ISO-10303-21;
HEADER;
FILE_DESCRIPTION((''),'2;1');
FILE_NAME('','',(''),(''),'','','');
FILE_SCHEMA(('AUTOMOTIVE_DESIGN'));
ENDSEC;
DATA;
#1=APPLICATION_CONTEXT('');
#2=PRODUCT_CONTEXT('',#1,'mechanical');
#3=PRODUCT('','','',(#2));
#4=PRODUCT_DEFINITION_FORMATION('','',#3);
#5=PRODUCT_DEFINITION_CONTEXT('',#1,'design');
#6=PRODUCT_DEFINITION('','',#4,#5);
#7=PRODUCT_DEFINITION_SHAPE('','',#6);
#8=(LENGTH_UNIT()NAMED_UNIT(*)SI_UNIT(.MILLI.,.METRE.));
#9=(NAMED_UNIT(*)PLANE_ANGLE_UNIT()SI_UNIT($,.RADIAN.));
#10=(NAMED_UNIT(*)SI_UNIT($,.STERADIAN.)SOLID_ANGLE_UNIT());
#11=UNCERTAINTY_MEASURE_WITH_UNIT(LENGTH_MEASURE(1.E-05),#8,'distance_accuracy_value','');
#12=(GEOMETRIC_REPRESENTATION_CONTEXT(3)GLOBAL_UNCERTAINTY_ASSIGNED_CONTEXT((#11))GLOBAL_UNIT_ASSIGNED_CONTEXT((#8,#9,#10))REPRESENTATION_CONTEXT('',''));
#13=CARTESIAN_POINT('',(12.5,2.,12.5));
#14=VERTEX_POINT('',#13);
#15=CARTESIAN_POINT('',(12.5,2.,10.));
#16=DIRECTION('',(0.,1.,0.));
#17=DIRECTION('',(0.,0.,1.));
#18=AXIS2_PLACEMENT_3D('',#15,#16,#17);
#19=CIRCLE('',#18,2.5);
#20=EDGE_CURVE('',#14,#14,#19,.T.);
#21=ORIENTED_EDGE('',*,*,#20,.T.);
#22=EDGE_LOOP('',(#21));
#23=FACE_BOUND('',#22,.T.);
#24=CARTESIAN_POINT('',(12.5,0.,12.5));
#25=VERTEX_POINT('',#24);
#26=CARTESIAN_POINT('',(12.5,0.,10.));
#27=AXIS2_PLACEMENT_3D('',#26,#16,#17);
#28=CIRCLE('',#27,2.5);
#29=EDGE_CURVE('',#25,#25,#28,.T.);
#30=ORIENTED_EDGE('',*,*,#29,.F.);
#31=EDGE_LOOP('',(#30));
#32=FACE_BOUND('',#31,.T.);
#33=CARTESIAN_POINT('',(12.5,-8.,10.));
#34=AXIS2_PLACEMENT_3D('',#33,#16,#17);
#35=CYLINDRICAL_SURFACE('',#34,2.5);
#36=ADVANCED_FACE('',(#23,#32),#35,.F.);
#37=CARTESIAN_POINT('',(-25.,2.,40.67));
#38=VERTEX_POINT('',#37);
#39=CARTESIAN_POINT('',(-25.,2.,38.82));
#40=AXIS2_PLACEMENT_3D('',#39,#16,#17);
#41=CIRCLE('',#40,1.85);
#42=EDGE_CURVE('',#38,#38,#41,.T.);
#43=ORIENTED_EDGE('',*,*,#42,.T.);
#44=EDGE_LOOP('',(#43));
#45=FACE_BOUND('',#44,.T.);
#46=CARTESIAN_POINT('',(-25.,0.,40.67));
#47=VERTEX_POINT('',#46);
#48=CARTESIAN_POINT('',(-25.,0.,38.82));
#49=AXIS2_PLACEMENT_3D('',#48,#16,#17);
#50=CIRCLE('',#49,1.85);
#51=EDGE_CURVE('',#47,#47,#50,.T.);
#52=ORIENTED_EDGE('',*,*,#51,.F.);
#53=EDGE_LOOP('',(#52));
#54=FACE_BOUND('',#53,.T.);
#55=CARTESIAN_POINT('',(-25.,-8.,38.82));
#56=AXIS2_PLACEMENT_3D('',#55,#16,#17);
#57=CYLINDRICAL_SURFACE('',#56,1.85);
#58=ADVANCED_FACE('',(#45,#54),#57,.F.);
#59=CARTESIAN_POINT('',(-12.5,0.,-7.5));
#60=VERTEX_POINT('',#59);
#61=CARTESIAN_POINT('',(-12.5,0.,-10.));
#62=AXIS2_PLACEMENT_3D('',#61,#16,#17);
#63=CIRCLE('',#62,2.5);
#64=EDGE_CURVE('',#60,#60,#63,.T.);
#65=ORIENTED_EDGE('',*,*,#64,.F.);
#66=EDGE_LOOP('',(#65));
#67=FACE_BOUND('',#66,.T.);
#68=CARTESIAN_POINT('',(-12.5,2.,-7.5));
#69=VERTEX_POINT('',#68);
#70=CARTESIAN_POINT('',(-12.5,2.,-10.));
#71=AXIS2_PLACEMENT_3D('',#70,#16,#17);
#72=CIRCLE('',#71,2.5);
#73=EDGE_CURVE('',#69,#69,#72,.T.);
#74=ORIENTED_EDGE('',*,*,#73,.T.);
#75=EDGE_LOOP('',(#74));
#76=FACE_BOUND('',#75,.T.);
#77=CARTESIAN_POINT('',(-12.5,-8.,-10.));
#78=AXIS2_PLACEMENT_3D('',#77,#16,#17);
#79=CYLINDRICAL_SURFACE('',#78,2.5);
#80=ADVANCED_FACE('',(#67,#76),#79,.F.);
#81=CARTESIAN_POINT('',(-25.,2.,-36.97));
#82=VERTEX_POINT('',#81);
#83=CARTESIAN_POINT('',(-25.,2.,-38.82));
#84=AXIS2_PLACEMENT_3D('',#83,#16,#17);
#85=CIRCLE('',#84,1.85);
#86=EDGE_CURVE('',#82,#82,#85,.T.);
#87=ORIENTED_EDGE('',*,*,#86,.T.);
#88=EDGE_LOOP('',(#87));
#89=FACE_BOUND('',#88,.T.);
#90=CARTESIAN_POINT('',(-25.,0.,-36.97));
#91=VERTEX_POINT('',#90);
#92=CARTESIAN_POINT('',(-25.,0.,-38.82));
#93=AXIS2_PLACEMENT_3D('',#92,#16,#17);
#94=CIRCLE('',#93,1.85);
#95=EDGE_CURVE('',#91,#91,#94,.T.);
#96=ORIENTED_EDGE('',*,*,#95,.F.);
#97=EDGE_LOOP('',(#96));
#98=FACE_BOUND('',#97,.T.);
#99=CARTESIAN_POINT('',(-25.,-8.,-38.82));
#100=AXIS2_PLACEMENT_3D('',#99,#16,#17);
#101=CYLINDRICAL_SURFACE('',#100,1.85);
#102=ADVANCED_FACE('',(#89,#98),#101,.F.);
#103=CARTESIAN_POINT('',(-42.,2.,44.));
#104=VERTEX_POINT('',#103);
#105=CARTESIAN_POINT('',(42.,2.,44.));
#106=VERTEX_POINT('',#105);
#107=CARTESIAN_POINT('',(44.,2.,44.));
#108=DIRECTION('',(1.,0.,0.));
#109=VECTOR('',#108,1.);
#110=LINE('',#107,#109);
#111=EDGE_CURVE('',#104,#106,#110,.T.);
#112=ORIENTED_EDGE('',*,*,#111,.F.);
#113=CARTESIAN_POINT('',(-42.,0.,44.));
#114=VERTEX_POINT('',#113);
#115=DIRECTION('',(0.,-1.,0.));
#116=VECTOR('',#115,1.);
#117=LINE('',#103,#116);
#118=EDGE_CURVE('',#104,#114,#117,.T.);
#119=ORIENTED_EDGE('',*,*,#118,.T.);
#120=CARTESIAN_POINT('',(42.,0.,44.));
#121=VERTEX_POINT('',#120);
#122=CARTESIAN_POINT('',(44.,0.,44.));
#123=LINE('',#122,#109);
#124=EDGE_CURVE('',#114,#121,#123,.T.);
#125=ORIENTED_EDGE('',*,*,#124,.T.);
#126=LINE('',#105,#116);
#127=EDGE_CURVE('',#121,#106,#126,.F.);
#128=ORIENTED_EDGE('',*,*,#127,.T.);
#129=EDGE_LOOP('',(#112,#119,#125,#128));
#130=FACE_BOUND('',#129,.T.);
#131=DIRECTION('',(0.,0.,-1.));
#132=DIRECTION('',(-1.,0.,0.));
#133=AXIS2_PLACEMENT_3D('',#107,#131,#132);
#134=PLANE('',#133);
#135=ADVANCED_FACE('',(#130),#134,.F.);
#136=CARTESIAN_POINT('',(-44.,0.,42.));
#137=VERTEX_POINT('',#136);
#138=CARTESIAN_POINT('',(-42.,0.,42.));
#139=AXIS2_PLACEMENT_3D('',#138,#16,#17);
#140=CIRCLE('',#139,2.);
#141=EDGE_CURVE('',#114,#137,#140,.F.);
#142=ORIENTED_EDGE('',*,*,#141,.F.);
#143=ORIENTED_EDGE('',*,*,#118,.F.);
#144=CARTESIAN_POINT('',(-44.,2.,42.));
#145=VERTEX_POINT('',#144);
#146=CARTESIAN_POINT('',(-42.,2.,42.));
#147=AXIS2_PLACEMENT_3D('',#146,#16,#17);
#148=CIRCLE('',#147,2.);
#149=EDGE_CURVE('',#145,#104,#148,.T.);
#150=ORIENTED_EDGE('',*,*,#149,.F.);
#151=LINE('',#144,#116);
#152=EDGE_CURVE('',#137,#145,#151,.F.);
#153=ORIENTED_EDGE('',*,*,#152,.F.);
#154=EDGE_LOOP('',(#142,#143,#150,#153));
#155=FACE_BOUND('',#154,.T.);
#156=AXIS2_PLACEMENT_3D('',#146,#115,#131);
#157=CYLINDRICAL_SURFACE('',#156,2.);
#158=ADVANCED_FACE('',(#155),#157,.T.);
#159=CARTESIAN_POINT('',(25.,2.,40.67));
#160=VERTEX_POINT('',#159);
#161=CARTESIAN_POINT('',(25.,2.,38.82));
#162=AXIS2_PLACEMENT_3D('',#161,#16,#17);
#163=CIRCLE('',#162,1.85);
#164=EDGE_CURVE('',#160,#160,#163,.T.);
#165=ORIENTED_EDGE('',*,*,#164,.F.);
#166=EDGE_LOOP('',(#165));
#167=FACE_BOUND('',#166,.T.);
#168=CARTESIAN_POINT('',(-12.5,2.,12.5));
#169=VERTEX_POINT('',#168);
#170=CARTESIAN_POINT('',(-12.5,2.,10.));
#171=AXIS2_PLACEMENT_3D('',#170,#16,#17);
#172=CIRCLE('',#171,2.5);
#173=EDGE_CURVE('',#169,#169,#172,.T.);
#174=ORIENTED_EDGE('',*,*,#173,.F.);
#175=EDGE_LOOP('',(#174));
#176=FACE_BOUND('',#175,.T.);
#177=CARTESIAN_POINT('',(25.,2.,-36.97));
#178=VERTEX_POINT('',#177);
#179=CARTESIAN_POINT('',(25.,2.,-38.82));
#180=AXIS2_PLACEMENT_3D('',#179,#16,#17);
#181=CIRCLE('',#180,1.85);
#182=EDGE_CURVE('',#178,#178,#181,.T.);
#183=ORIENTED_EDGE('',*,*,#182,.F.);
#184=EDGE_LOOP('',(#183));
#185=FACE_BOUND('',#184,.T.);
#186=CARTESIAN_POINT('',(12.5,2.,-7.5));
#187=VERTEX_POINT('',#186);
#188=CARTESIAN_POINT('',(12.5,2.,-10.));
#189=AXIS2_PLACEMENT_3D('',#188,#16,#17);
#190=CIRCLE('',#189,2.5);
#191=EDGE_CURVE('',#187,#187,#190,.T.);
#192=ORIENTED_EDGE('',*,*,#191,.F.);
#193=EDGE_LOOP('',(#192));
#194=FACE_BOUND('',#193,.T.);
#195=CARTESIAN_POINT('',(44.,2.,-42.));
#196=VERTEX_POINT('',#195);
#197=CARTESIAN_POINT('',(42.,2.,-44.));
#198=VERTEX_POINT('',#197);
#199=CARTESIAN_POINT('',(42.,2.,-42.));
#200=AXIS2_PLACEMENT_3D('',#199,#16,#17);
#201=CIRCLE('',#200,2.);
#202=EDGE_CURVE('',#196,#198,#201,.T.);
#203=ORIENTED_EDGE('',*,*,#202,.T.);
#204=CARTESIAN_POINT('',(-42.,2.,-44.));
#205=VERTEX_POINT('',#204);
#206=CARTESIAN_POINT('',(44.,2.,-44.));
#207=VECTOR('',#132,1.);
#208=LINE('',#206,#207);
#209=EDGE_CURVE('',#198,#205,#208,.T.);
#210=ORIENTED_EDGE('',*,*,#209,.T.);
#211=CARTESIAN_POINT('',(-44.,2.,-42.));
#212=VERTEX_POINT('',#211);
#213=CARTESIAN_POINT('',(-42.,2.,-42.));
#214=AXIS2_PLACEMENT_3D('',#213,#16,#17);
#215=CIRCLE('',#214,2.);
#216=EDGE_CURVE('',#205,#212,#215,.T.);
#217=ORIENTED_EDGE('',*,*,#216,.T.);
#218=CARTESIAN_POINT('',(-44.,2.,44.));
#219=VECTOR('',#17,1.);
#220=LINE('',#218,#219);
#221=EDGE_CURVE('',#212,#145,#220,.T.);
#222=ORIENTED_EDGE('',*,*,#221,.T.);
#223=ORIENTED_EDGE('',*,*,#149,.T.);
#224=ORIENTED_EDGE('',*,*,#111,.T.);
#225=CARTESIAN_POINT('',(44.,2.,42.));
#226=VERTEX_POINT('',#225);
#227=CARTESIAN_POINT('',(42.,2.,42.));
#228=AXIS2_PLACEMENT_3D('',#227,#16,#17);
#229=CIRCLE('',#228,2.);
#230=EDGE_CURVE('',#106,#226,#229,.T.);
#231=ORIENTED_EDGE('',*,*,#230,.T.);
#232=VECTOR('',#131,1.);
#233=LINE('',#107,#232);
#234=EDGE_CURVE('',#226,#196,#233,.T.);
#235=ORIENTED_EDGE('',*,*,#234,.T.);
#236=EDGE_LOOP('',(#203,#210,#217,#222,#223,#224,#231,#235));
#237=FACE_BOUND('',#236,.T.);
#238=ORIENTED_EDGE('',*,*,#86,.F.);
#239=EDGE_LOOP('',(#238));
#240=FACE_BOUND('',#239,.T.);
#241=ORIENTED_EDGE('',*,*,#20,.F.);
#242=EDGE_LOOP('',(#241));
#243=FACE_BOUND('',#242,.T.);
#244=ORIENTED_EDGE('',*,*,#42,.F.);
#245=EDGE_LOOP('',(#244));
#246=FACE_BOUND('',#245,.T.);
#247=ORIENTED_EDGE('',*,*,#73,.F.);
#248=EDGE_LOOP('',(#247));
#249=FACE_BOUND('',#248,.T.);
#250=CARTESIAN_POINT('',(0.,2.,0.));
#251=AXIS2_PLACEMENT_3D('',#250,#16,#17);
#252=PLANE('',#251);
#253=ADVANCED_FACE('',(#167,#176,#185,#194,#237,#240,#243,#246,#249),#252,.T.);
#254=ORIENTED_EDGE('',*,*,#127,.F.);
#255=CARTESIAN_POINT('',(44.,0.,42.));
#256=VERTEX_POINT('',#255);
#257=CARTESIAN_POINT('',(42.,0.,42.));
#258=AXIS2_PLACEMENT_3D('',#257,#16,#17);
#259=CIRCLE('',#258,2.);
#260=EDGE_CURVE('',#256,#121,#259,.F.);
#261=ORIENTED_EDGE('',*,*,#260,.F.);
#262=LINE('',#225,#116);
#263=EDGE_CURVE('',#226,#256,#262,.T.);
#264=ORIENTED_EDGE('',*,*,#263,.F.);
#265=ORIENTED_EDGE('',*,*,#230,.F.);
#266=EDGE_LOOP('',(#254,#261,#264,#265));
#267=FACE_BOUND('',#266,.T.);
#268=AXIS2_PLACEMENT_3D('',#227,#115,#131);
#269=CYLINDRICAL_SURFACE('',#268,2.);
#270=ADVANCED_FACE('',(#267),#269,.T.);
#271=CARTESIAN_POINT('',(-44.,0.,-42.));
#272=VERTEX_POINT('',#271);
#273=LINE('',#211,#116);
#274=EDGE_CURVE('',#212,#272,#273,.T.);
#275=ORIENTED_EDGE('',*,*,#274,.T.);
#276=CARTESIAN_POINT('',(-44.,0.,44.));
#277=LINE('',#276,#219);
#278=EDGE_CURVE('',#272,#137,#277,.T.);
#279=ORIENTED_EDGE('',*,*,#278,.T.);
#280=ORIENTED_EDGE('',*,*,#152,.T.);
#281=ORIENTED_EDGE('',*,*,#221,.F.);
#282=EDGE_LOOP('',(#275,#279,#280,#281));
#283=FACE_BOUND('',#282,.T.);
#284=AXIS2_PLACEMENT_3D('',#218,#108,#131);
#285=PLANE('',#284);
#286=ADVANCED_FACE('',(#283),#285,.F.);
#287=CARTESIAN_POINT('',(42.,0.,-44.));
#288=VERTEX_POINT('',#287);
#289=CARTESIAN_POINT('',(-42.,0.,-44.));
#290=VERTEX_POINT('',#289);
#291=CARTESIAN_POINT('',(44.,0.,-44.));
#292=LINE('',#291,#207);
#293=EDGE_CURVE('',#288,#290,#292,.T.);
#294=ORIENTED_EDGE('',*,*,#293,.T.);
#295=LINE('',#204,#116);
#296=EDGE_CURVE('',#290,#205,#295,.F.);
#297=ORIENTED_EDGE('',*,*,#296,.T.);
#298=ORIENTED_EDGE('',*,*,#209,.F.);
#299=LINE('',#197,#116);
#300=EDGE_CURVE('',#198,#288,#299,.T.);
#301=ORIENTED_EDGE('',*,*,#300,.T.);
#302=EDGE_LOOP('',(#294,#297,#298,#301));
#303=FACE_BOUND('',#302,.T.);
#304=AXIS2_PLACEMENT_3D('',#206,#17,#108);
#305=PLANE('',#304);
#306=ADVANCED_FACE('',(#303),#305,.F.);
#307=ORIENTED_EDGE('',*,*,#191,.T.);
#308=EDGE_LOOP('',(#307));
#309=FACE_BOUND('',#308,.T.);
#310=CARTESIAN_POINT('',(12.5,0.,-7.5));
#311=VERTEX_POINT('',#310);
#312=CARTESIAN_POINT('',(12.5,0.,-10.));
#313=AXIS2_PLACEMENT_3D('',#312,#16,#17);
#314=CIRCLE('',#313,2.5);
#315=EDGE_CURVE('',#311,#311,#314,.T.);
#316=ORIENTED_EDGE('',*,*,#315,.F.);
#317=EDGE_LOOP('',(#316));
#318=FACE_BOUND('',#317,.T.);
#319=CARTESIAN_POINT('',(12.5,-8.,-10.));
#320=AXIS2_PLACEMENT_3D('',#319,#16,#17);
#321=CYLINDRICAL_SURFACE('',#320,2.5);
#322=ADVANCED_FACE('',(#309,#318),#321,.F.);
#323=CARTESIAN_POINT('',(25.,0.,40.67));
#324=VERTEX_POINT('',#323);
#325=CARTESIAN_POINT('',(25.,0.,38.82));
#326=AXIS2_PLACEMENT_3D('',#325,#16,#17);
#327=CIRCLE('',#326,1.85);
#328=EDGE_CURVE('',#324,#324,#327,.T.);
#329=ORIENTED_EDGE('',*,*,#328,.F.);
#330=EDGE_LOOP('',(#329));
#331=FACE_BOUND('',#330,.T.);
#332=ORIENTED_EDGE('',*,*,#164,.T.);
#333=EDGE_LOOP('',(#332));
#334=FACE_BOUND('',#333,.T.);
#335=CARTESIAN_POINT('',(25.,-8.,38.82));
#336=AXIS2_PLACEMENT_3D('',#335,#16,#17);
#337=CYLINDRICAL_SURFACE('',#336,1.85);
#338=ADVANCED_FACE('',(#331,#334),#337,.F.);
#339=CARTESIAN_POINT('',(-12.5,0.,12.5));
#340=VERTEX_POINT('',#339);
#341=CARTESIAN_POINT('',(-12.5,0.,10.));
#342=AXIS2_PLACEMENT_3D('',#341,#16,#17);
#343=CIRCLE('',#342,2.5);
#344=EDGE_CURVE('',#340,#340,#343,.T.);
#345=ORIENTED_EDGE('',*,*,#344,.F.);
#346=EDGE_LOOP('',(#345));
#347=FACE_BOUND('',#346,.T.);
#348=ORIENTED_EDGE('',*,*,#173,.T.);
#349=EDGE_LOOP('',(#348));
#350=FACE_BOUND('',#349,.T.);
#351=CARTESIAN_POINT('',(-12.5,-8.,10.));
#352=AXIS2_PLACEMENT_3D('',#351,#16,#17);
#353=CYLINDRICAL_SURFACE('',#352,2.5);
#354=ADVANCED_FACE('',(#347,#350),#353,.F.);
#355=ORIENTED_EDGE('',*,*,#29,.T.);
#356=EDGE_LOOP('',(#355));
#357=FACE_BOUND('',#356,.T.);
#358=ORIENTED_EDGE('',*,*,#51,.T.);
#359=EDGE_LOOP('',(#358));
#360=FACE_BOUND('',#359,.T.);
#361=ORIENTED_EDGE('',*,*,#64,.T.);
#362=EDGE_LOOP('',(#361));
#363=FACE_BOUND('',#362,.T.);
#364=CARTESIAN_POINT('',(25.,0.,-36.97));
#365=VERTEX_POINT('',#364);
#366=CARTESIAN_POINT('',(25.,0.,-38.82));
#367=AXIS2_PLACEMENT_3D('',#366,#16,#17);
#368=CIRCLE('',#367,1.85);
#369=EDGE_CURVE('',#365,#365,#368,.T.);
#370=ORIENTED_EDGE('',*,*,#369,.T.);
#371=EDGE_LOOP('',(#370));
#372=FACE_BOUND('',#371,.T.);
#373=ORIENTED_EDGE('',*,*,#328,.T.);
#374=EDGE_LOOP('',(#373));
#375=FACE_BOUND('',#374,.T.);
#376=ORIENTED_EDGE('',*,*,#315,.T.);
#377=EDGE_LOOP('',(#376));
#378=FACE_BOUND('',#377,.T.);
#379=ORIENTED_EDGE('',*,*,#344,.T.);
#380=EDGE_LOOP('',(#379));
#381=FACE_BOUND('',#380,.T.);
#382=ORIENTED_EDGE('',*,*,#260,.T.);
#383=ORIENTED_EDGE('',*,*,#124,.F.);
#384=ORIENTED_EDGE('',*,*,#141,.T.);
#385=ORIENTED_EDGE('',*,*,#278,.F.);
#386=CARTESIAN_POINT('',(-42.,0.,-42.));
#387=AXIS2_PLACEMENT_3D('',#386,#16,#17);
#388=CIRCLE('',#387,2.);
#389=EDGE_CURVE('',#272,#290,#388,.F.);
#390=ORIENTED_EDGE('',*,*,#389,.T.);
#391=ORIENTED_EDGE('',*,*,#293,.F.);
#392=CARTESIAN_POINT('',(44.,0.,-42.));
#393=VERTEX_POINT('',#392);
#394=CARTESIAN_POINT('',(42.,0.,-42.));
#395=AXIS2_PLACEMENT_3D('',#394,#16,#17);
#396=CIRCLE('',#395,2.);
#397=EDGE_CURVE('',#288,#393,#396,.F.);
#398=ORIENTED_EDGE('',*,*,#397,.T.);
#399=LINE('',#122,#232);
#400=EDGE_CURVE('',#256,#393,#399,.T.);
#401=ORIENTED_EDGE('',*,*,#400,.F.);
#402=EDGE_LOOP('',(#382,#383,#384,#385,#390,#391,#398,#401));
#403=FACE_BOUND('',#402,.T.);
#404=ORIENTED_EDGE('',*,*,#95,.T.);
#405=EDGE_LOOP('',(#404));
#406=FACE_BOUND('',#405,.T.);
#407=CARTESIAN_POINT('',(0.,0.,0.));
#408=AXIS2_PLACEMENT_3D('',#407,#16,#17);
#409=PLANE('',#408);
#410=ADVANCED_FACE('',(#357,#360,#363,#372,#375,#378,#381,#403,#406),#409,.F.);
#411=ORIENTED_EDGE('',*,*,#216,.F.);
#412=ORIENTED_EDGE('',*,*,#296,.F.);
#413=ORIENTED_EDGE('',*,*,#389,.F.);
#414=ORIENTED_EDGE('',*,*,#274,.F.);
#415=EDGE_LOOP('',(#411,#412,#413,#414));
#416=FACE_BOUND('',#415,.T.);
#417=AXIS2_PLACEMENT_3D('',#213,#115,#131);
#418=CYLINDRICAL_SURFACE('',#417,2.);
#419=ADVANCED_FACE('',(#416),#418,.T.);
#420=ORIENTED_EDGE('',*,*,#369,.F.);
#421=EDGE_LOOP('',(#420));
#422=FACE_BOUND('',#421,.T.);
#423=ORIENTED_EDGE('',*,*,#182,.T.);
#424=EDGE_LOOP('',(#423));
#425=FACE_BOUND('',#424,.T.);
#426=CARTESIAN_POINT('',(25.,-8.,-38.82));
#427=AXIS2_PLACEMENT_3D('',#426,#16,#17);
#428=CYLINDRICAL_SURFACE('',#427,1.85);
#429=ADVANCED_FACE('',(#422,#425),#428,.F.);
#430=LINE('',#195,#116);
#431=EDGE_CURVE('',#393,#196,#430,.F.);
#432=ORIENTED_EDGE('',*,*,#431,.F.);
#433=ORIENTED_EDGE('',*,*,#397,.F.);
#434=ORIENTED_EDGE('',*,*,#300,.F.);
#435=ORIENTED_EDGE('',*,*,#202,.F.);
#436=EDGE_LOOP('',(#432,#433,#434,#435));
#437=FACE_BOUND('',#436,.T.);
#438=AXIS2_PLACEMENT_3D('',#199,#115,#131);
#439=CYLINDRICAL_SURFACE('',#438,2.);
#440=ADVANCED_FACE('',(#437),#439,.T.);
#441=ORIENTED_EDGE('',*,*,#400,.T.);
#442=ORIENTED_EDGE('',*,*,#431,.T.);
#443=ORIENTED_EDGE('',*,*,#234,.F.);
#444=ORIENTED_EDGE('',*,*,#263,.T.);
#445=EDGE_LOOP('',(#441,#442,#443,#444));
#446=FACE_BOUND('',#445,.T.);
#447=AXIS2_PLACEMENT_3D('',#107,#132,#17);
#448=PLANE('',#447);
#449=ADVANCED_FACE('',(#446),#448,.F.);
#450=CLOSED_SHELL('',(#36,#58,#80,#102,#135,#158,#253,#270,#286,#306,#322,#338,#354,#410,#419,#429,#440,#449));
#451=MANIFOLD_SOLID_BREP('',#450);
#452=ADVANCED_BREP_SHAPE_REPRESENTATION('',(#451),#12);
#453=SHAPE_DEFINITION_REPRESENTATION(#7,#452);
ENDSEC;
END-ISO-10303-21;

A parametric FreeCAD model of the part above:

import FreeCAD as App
import Part
import Sketcher
Q = App.Units.Quantity


def edges_at(feature, points):
    """Names of the edges that pass closest to the given points."""
    edges = feature.Shape.Edges
    near = lambda p: min(range(len(edges)), key=lambda i: edges[i].distToShape(Part.Vertex(*p))[0])
    return sorted({f"Edge{near(p) + 1}" for p in points})

doc = App.newDocument("Part")
params = doc.addObject("Spreadsheet::Sheet", "Params")
for row, (alias, value) in enumerate([
    ("sketch1_width", "88 mm"),
    ("pad1_length", "2 mm"),
    ("fillet_radius", "2 mm"),
    ("sketch2_diameter", "3.7 mm"),
    ("pocket1_length", "10 mm"),
    ("sketch3_diameter", "5 mm"),
    ("pocket2_length", "10 mm"),
], start=1):
    params.set(f"A{row}", alias)
    params.set(f"B{row}", "=" + value)
    params.setAlias(f"B{row}", alias)

body = doc.addObject("PartDesign::Body", "Body")

sketch1 = doc.addObject("Sketcher::SketchObject", "Sketch")
body.addObject(sketch1)
sketch1.AttachmentSupport = (doc.XZ_Plane, [""])
sketch1.MapMode = "FlatFace"
sketch1.addGeometry(Part.LineSegment(App.Vector(-44, -44, 0), App.Vector(-44, 44, 0)), False)
sketch1.addGeometry(Part.LineSegment(App.Vector(-44, 44, 0), App.Vector(44, 44, 0)), False)
sketch1.addGeometry(Part.LineSegment(App.Vector(44, 44, 0), App.Vector(44, -44, 0)), False)
sketch1.addGeometry(Part.LineSegment(App.Vector(44, -44, 0), App.Vector(-44, -44, 0)), False)
sketch1.addConstraint(Sketcher.Constraint("Coincident", 0, 2, 1, 1))
sketch1.addConstraint(Sketcher.Constraint("Coincident", 1, 2, 2, 1))
sketch1.addConstraint(Sketcher.Constraint("Coincident", 2, 2, 3, 1))
sketch1.addConstraint(Sketcher.Constraint("Coincident", 3, 2, 0, 1))
sketch1.addConstraint(Sketcher.Constraint("Vertical", 0))
sketch1.addConstraint(Sketcher.Constraint("Horizontal", 1))
sketch1.addConstraint(Sketcher.Constraint("Vertical", 2))
sketch1.addConstraint(Sketcher.Constraint("Horizontal", 3))
sketch1.addConstraint(Sketcher.Constraint("Symmetric", 0, 2, 2, 2, -1, 1))
sketch1.addConstraint(Sketcher.Constraint("Equal", 3, 0))
sketch1.addConstraint(Sketcher.Constraint("DistanceX", 1, 1, 1, 2, Q("88 mm")))
sketch1.setExpression("Constraints[10]", "Params.sketch1_width")
pad1 = doc.addObject("PartDesign::Pad", "Pad")
body.addObject(pad1)
pad1.Profile = sketch1
pad1.setExpression("Length", "Params.pad1_length")
pad1.Reversed = True
doc.recompute()

fillet = doc.addObject("PartDesign::Fillet", "Fillet")
body.addObject(fillet)
fillet.Base = (pad1, edges_at(pad1, [
    (-44, 1, -44),
    (44, 1, -44),
    (44, 1, 44),
    (-44, 1, 44),
]))
fillet.setExpression("Radius", "Params.fillet_radius")

sketch2 = doc.addObject("Sketcher::SketchObject", "Sketch001")
body.addObject(sketch2)
sketch2.AttachmentSupport = (doc.XZ_Plane, [""])
sketch2.MapMode = "FlatFace"
sketch2.AttachmentOffset = App.Placement(App.Vector(0, 0, -2), App.Rotation())
sketch2.addGeometry(Part.Circle(App.Vector(-25, -38.8, 0), App.Vector(0, 0, 1), 1.9), False)
sketch2.addGeometry(Part.Circle(App.Vector(25, -38.8, 0), App.Vector(0, 0, 1), 1.9), False)
sketch2.addGeometry(Part.Circle(App.Vector(-25, 38.8, 0), App.Vector(0, 0, 1), 1.9), False)
sketch2.addGeometry(Part.Circle(App.Vector(25, 38.8, 0), App.Vector(0, 0, 1), 1.9), False)
sketch2.addConstraint(Sketcher.Constraint("Equal", 0, 1))
sketch2.addConstraint(Sketcher.Constraint("Equal", 1, 2))
sketch2.addConstraint(Sketcher.Constraint("Equal", 2, 3))
sketch2.addConstraint(Sketcher.Constraint("Symmetric", 1, 3, 2, 3, -1, 1))
sketch2.addConstraint(Sketcher.Constraint("Symmetric", 0, 3, 3, 3, -1, 1))
sketch2.addConstraint(Sketcher.Constraint("Symmetric", 0, 3, 1, 3, -2))
sketch2.addConstraint(Sketcher.Constraint("Diameter", 0, Q("3.7 mm")))
sketch2.addConstraint(Sketcher.Constraint("DistanceX", 0, 3, -1, 1, Q("25 mm")))
sketch2.addConstraint(Sketcher.Constraint("DistanceY", 0, 3, -1, 1, Q("38.82 mm")))
sketch2.setExpression("Constraints[6]", "Params.sketch2_diameter")
pocket1 = doc.addObject("PartDesign::Pocket", "Pocket")
body.addObject(pocket1)
pocket1.Profile = sketch2
pocket1.setExpression("Length", "Params.pocket1_length")
pocket1.Reversed = True

sketch3 = doc.addObject("Sketcher::SketchObject", "Sketch002")
body.addObject(sketch3)
sketch3.AttachmentSupport = (doc.XZ_Plane, [""])
sketch3.MapMode = "FlatFace"
sketch3.AttachmentOffset = App.Placement(App.Vector(0, 0, -2), App.Rotation())
sketch3.addGeometry(Part.Circle(App.Vector(-12.5, -10, 0), App.Vector(0, 0, 1), 2.5), False)
sketch3.addGeometry(Part.Circle(App.Vector(-12.5, 10, 0), App.Vector(0, 0, 1), 2.5), False)
sketch3.addGeometry(Part.Circle(App.Vector(12.5, 10, 0), App.Vector(0, 0, 1), 2.5), False)
sketch3.addGeometry(Part.Circle(App.Vector(12.5, -10, 0), App.Vector(0, 0, 1), 2.5), False)
sketch3.addConstraint(Sketcher.Constraint("Equal", 0, 1))
sketch3.addConstraint(Sketcher.Constraint("Equal", 1, 2))
sketch3.addConstraint(Sketcher.Constraint("Equal", 2, 3))
sketch3.addConstraint(Sketcher.Constraint("Symmetric", 0, 3, 2, 3, -1, 1))
sketch3.addConstraint(Sketcher.Constraint("Symmetric", 1, 3, 3, 3, -1, 1))
sketch3.addConstraint(Sketcher.Constraint("Symmetric", 1, 3, 2, 3, -2))
sketch3.addConstraint(Sketcher.Constraint("Diameter", 0, Q("5 mm")))
sketch3.addConstraint(Sketcher.Constraint("DistanceY", 0, 3, -1, 1, Q("10 mm")))
sketch3.addConstraint(Sketcher.Constraint("DistanceX", 1, 3, 2, 3, Q("25 mm")))
sketch3.setExpression("Constraints[6]", "Params.sketch3_diameter")
pocket2 = doc.addObject("PartDesign::Pocket", "Pocket001")
body.addObject(pocket2)
pocket2.Profile = sketch3
pocket2.setExpression("Length", "Params.pocket2_length")
pocket2.Reversed = True

doc.recompute()
